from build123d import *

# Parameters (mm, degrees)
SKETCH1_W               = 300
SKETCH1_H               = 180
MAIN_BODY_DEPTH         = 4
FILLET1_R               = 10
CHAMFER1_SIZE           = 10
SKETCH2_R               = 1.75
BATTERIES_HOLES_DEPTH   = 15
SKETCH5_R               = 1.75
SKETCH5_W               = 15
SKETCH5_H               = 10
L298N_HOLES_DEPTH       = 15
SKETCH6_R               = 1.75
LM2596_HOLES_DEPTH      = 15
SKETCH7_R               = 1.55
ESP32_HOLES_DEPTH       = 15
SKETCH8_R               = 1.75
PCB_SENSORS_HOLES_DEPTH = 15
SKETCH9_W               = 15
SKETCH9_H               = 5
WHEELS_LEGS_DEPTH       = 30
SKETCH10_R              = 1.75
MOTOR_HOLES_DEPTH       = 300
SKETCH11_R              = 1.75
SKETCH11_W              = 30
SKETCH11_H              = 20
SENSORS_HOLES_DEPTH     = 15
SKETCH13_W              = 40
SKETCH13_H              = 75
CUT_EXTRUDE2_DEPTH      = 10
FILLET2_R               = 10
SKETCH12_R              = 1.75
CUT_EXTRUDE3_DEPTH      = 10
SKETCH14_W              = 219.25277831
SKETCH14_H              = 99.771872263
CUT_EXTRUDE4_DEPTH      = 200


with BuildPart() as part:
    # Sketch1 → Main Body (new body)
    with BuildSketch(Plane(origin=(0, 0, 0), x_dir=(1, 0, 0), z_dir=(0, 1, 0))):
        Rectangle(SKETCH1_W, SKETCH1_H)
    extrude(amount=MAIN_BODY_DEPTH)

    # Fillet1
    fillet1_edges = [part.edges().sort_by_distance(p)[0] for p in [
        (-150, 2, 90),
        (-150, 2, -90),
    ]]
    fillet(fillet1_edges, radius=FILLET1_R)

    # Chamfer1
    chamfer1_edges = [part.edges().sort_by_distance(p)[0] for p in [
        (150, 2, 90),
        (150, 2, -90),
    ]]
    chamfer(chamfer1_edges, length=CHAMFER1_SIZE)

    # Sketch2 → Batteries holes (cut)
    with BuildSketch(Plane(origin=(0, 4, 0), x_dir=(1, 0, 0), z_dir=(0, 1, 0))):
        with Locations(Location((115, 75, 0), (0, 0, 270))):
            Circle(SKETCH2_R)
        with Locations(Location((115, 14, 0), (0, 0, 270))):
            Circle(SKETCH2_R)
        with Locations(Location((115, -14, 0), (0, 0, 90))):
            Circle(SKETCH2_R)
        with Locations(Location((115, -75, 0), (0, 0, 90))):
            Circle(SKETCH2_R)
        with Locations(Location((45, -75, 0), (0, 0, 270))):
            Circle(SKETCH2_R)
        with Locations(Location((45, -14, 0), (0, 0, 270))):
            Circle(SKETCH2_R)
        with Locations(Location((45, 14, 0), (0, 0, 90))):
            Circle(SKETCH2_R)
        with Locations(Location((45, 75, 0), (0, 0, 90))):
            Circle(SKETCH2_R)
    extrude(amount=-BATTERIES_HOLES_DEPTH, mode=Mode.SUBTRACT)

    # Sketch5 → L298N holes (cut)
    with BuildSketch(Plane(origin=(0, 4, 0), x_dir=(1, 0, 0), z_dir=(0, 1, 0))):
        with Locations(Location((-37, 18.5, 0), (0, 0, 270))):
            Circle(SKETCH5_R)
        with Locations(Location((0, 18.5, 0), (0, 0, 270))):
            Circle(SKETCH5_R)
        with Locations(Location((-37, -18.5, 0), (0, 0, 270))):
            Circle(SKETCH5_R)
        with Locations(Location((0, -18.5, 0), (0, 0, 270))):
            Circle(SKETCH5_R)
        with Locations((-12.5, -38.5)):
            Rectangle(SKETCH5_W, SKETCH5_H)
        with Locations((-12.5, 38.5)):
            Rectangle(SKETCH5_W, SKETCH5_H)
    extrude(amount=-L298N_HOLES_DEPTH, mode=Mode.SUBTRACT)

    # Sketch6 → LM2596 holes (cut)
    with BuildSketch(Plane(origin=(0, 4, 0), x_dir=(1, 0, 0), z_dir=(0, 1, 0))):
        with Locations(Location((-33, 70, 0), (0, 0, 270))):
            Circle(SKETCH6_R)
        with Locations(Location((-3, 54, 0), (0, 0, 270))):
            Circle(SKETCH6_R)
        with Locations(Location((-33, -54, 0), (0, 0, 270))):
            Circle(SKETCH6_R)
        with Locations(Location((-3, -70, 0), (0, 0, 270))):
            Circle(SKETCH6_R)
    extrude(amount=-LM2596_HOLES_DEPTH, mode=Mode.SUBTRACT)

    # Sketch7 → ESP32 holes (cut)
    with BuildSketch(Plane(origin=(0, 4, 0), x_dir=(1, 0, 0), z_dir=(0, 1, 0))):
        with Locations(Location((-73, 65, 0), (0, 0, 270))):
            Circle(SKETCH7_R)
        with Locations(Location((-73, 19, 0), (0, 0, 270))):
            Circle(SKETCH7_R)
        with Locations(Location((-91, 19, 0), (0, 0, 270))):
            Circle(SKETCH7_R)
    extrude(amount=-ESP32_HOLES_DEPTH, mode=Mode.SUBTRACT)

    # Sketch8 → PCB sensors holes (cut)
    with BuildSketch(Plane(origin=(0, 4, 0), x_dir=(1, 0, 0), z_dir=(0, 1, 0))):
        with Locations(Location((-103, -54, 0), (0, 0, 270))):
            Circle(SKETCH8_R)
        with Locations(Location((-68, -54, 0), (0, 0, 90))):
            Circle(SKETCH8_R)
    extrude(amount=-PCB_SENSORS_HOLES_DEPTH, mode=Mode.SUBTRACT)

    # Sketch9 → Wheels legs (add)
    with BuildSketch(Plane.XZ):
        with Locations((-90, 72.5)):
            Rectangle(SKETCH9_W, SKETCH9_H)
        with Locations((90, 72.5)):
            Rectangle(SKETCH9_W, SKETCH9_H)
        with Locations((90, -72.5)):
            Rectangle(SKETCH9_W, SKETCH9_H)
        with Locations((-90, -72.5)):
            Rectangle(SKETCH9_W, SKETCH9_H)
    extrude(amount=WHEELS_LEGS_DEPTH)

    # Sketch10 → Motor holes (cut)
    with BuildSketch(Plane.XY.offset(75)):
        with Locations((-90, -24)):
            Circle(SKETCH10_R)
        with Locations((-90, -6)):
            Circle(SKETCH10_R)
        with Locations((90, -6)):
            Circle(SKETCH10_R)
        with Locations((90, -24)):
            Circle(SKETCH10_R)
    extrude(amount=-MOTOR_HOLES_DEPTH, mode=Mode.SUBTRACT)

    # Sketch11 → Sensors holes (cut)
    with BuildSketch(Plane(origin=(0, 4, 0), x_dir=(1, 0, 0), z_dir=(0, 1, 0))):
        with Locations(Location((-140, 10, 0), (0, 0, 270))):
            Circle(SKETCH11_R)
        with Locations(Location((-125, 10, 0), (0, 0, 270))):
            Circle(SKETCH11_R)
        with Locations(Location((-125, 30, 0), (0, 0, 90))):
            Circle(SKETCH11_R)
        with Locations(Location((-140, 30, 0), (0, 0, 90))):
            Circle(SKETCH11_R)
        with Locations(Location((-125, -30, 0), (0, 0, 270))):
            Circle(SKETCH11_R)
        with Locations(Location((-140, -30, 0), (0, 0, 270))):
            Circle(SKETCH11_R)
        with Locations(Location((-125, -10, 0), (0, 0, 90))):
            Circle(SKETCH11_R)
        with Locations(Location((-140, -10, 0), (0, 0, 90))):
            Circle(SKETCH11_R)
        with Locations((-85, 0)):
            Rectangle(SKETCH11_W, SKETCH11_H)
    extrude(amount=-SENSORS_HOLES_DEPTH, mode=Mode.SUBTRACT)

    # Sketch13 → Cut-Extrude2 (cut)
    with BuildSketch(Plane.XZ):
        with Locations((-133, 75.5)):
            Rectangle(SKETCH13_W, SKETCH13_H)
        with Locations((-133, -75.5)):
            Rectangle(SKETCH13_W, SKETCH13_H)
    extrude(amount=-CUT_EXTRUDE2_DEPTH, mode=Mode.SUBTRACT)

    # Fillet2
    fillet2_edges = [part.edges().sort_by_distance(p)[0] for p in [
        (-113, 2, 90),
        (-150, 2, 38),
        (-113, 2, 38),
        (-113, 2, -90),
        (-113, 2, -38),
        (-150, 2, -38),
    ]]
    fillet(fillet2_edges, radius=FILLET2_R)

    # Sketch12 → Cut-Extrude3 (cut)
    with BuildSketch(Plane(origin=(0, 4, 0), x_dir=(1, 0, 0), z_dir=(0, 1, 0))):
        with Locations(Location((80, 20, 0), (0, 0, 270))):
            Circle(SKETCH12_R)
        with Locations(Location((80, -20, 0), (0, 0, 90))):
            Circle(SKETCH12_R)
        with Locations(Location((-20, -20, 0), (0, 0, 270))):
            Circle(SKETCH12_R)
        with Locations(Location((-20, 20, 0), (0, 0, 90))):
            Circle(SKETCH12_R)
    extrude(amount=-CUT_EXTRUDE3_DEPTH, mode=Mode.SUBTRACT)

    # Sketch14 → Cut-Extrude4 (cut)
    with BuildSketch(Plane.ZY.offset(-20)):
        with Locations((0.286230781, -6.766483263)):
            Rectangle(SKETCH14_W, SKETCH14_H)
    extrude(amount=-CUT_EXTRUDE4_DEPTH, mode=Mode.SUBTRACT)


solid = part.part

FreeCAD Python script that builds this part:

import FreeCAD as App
import Part
import Sketcher
from FreeCAD import Vector


def edges_at(feature, points):
    """Names of the edges that pass closest to the given points."""
    edges = feature.Shape.Edges
    near = lambda p: min(range(len(edges)), key=lambda i: edges[i].distToShape(Part.Vertex(*p))[0])
    return sorted({f"Edge{near(p) + 1}" for p in points})

doc = App.newDocument("Part")
params = doc.addObject("Spreadsheet::Sheet", "Params")
for row, (alias, value) in enumerate([
    ("sketch1_width", "300 mm"),
    ("sketch1_height", "180 mm"),
    ("pad1_length", "4 mm"),
    ("fillet_radius", "10 mm"),
    ("chamfer_size", "10 mm"),
    ("sketch2_diameter", "3.5 mm"),
    ("pocket1_length", "15 mm"),
    ("sketch3_diameter", "3.5 mm"),
    ("sketch3_width", "15 mm"),
    ("sketch3_height", "10 mm"),
    ("pocket2_length", "15 mm"),
    ("sketch4_diameter", "3.5 mm"),
    ("pocket3_length", "15 mm"),
    ("sketch5_diameter", "3.1 mm"),
    ("pocket4_length", "15 mm"),
    ("sketch6_diameter", "3.5 mm"),
    ("pocket5_length", "15 mm"),
    ("sketch7_width", "15 mm"),
    ("sketch7_height", "5 mm"),
    ("pad2_length", "30 mm"),
    ("sketch8_diameter", "3.5 mm"),
    ("pocket6_length", "300 mm"),
    ("sketch9_diameter", "3.5 mm"),
    ("sketch9_width", "30 mm"),
    ("sketch9_height", "20 mm"),
    ("pocket7_length", "15 mm"),
    ("sketch10_width", "40 mm"),
    ("sketch10_height", "75 mm"),
    ("pocket8_length", "10 mm"),
    ("fillet2_radius", "10 mm"),
    ("sketch11_diameter", "3.5 mm"),
    ("pocket9_length", "10 mm"),
    ("pocket10_length", "200 mm"),
], start=1):
    params.set(f"A{row}", alias)
    params.set(f"B{row}", "=" + value)
    params.setAlias(f"B{row}", alias)

body = doc.addObject("PartDesign::Body", "Body")

# Sketch on XZ plane
sketch1 = body.newObject("Sketcher::SketchObject", "Sketch")
sketch1.AttachmentSupport = (doc.getObject("XZ_Plane"), [""])
sketch1.MapMode = "FlatFace"
sketch1.addGeometry([
    Part.LineSegment(Vector(-150, -90, 0), Vector(-150, 90, 0)),
    Part.LineSegment(Vector(-150, 90, 0), Vector(150, 90, 0)),
    Part.LineSegment(Vector(150, 90, 0), Vector(150, -90, 0)),
    Part.LineSegment(Vector(150, -90, 0), Vector(-150, -90, 0)),
], False)
sketch1.addConstraint([
    Sketcher.Constraint("Coincident", 0, 2, 1, 1),
    Sketcher.Constraint("Coincident", 1, 2, 2, 1),
    Sketcher.Constraint("Coincident", 2, 2, 3, 1),
    Sketcher.Constraint("Coincident", 3, 2, 0, 1),
    Sketcher.Constraint("Vertical", 0),
    Sketcher.Constraint("Horizontal", 1),
    Sketcher.Constraint("Vertical", 2),
    Sketcher.Constraint("Horizontal", 3),
    Sketcher.Constraint("Symmetric", 0, 2, 2, 2, -1, 1),
    Sketcher.Constraint("DistanceX", 1, 1, 1, 2, 300.0),
    Sketcher.Constraint("DistanceY", 0, 1, 0, 2, 180.0),
])
sketch1.setExpression("Constraints[9]", "Params.sketch1_width")
sketch1.setExpression("Constraints[10]", "Params.sketch1_height")
pad1 = body.newObject("PartDesign::Pad", "Pad")
pad1.Profile = sketch1
pad1.setExpression("Length", "Params.pad1_length")
pad1.Reversed = True
doc.recompute()

fillet = body.newObject("PartDesign::Fillet", "Fillet")
fillet.Base = (pad1, edges_at(pad1, [(-150, 2, 90), (-150, 2, -90)]))
fillet.setExpression("Radius", "Params.fillet_radius")
doc.recompute()

chamfer = body.newObject("PartDesign::Chamfer", "Chamfer")
chamfer.Base = (fillet, edges_at(fillet, [(150, 2, 90), (150, 2, -90)]))
chamfer.setExpression("Size", "Params.chamfer_size")

# Sketch on XZ plane
sketch2 = body.newObject("Sketcher::SketchObject", "Sketch001")
sketch2.AttachmentSupport = (doc.getObject("XZ_Plane"), [""])
sketch2.MapMode = "FlatFace"
sketch2.AttachmentOffset = App.Placement(Vector(0, 0, -4), App.Rotation())
sketch2.addGeometry([
    Part.Circle(Vector(115, -75, 0), Vector(0, 0, 1), 1.8),  # 0
    Part.Circle(Vector(115, -14, 0), Vector(0, 0, 1), 1.8),  # 1
    Part.Circle(Vector(115, 14, 0), Vector(0, 0, 1), 1.8),  # 2
    Part.Circle(Vector(115, 75, 0), Vector(0, 0, 1), 1.8),  # 3
    Part.Circle(Vector(45, 75, 0), Vector(0, 0, 1), 1.8),  # 4
    Part.Circle(Vector(45, 14, 0), Vector(0, 0, 1), 1.8),  # 5
    Part.Circle(Vector(45, -14, 0), Vector(0, 0, 1), 1.8),  # 6
    Part.Circle(Vector(45, -75, 0), Vector(0, 0, 1), 1.8),  # 7
], False)
sketch2.addConstraint([
    Sketcher.Constraint("Equal", 0, 1),
    Sketcher.Constraint("Equal", 1, 2),
    Sketcher.Constraint("Equal", 2, 3),
    Sketcher.Constraint("Equal", 3, 4),
    Sketcher.Constraint("Equal", 4, 5),
    Sketcher.Constraint("Equal", 5, 6),
    Sketcher.Constraint("Equal", 6, 7),
    Sketcher.Constraint("Symmetric", 1, 3, 2, 3, -1),
    Sketcher.Constraint("Symmetric", 0, 3, 3, 3, -1),
    Sketcher.Constraint("Symmetric", 5, 3, 6, 3, -1),
    Sketcher.Constraint("Symmetric", 4, 3, 7, 3, -1),
    Sketcher.Constraint("Horizontal", 3, 3, 4, 3),
    Sketcher.Constraint("Horizontal", 2, 3, 5, 3),
    Sketcher.Constraint("Vertical", 0, 3, 1, 3),
    Sketcher.Constraint("Vertical", 4, 3, 5, 3),
    Sketcher.Constraint("Diameter", 0, 3.5),
    Sketcher.Constraint("DistanceX", -1, 1, 0, 3, 115.0),
    Sketcher.Constraint("DistanceY", 0, 3, -1, 1, 75.0),
    Sketcher.Constraint("DistanceY", 1, 3, -1, 1, 14.0),
    Sketcher.Constraint("DistanceX", -1, 1, 4, 3, 45.0),
])
sketch2.setExpression("Constraints[15]", "Params.sketch2_diameter")
pocket1 = body.newObject("PartDesign::Pocket", "Pocket")
pocket1.Profile = sketch2
pocket1.setExpression("Length", "Params.pocket1_length")
pocket1.Reversed = True

# Sketch on XZ plane
sketch3 = body.newObject("Sketcher::SketchObject", "Sketch002")
sketch3.AttachmentSupport = (doc.getObject("XZ_Plane"), [""])
sketch3.MapMode = "FlatFace"
sketch3.AttachmentOffset = App.Placement(Vector(0, 0, -4), App.Rotation())
sketch3.addGeometry([
    Part.Circle(Vector(-37, -18.5, 0), Vector(0, 0, 1), 1.8),  # 0
    Part.Circle(Vector(0, -18.5, 0), Vector(0, 0, 1), 1.8),  # 1
    Part.Circle(Vector(-37, 18.5, 0), Vector(0, 0, 1), 1.8),  # 2
    Part.Circle(Vector(0, 18.5, 0), Vector(0, 0, 1), 1.8),  # 3
    Part.LineSegment(Vector(-20, 33.5, 0), Vector(-20, 43.5, 0)),  # 4
    Part.LineSegment(Vector(-20, 43.5, 0), Vector(-5, 43.5, 0)),  # 5
    Part.LineSegment(Vector(-5, 43.5, 0), Vector(-5, 33.5, 0)),  # 6
    Part.LineSegment(Vector(-5, 33.5, 0), Vector(-20, 33.5, 0)),  # 7
    Part.LineSegment(Vector(-20, -43.5, 0), Vector(-20, -33.5, 0)),  # 8
    Part.LineSegment(Vector(-20, -33.5, 0), Vector(-5, -33.5, 0)),  # 9
    Part.LineSegment(Vector(-5, -33.5, 0), Vector(-5, -43.5, 0)),  # 10
    Part.LineSegment(Vector(-5, -43.5, 0), Vector(-20, -43.5, 0)),  # 11
], False)
sketch3.addConstraint([
    Sketcher.Constraint("Coincident", 4, 2, 5, 1),
    Sketcher.Constraint("Coincident", 5, 2, 6, 1),
    Sketcher.Constraint("Coincident", 6, 2, 7, 1),
    Sketcher.Constraint("Coincident", 7, 2, 4, 1),
    Sketcher.Constraint("Coincident", 8, 2, 9, 1),
    Sketcher.Constraint("Coincident", 9, 2, 10, 1),
    Sketcher.Constraint("Coincident", 10, 2, 11, 1),
    Sketcher.Constraint("Coincident", 11, 2, 8, 1),
    Sketcher.Constraint("Vertical", 4),
    Sketcher.Constraint("Horizontal", 5),
    Sketcher.Constraint("Vertical", 6),
    Sketcher.Constraint("Horizontal", 7),
    Sketcher.Constraint("Vertical", 8),
    Sketcher.Constraint("Horizontal", 9),
    Sketcher.Constraint("Vertical", 10),
    Sketcher.Constraint("Horizontal", 11),
    Sketcher.Constraint("Equal", 0, 1),
    Sketcher.Constraint("Equal", 1, 2),
    Sketcher.Constraint("Equal", 2, 3),
    Sketcher.Constraint("Symmetric", 1, 3, 3, 3, -1, 1),
    Sketcher.Constraint("Symmetric", 0, 3, 2, 3, -1),
    Sketcher.Constraint("Symmetric", 7, 2, 8, 2, -1),
    Sketcher.Constraint("Symmetric", 5, 2, 10, 2, -1),
    Sketcher.Constraint("PointOnObject", 1, 3, -2),
    Sketcher.Constraint("Horizontal", 0, 3, 1, 3),
    Sketcher.Constraint("Diameter", 0, 3.5),
    Sketcher.Constraint("DistanceX", 5, 1, 5, 2, 15.0),
    Sketcher.Constraint("DistanceY", 4, 1, 4, 2, 10.0),
    Sketcher.Constraint("DistanceX", 0, 3, -1, 1, 37.0),
    Sketcher.Constraint("DistanceX", 4, 2, -1, 1, 20.0),
    Sketcher.Constraint("DistanceY", 0, 3, 2, 3, 37.0),
    Sketcher.Constraint("DistanceY", 2, 3, 4, 2, 25.0),
])
sketch3.setExpression("Constraints[25]", "Params.sketch3_diameter")
sketch3.setExpression("Constraints[26]", "Params.sketch3_width")
sketch3.setExpression("Constraints[27]", "Params.sketch3_height")
pocket2 = body.newObject("PartDesign::Pocket", "Pocket001")
pocket2.Profile = sketch3
pocket2.setExpression("Length", "Params.pocket2_length")
pocket2.Reversed = True

# Sketch on XZ plane
sketch4 = body.newObject("Sketcher::SketchObject", "Sketch003")
sketch4.AttachmentSupport = (doc.getObject("XZ_Plane"), [""])
sketch4.MapMode = "FlatFace"
sketch4.AttachmentOffset = App.Placement(Vector(0, 0, -4), App.Rotation())
sketch4.addGeometry([
    Part.Circle(Vector(-33, -70, 0), Vector(0, 0, 1), 1.8),
    Part.Circle(Vector(-3, -54, 0), Vector(0, 0, 1), 1.8),
    Part.Circle(Vector(-33, 54, 0), Vector(0, 0, 1), 1.8),
    Part.Circle(Vector(-3, 70, 0), Vector(0, 0, 1), 1.8),
], False)
sketch4.addConstraint([
    Sketcher.Constraint("Equal", 0, 1),
    Sketcher.Constraint("Equal", 1, 2),
    Sketcher.Constraint("Equal", 2, 3),
    Sketcher.Constraint("Vertical", 0, 3, 2, 3),
    Sketcher.Constraint("Vertical", 1, 3, 3, 3),
    Sketcher.Constraint("Diameter", 0, 3.5),
    Sketcher.Constraint("DistanceX", 0, 3, -1, 1, 33.0),
    Sketcher.Constraint("DistanceY", 0, 3, -1, 1, 70.0),
    Sketcher.Constraint("DistanceX", 1, 3, -1, 1, 3.0),
    Sketcher.Constraint("DistanceY", 1, 3, -1, 1, 54.0),
    Sketcher.Constraint("DistanceY", -1, 1, 2, 3, 54.0),
    Sketcher.Constraint("DistanceY", -1, 1, 3, 3, 70.0),
])
sketch4.setExpression("Constraints[5]", "Params.sketch4_diameter")
pocket3 = body.newObject("PartDesign::Pocket", "Pocket002")
pocket3.Profile = sketch4
pocket3.setExpression("Length", "Params.pocket3_length")
pocket3.Reversed = True

# Sketch on XZ plane
sketch5 = body.newObject("Sketcher::SketchObject", "Sketch004")
sketch5.AttachmentSupport = (doc.getObject("XZ_Plane"), [""])
sketch5.MapMode = "FlatFace"
sketch5.AttachmentOffset = App.Placement(Vector(0, 0, -4), App.Rotation())
sketch5.addGeometry([
    Part.Circle(Vector(-73, -65, 0), Vector(0, 0, 1), 1.6),
    Part.Circle(Vector(-73, -19, 0), Vector(0, 0, 1), 1.6),
    Part.Circle(Vector(-91, -19, 0), Vector(0, 0, 1), 1.6),
], False)
sketch5.addConstraint([
    Sketcher.Constraint("Equal", 0, 1),
    Sketcher.Constraint("Equal", 1, 2),
    Sketcher.Constraint("Horizontal", 1, 3, 2, 3),
    Sketcher.Constraint("Vertical", 0, 3, 1, 3),
    Sketcher.Constraint("Diameter", 0, 3.1),
    Sketcher.Constraint("DistanceX", 0, 3, -1, 1, 73.0),
    Sketcher.Constraint("DistanceY", 0, 3, -1, 1, 65.0),
    Sketcher.Constraint("DistanceY", 1, 3, -1, 1, 19.0),
    Sketcher.Constraint("DistanceX", 2, 3, -1, 1, 91.0),
])
sketch5.setExpression("Constraints[4]", "Params.sketch5_diameter")
pocket4 = body.newObject("PartDesign::Pocket", "Pocket003")
pocket4.Profile = sketch5
pocket4.setExpression("Length", "Params.pocket4_length")
pocket4.Reversed = True

# Sketch on XZ plane
sketch6 = body.newObject("Sketcher::SketchObject", "Sketch005")
sketch6.AttachmentSupport = (doc.getObject("XZ_Plane"), [""])
sketch6.MapMode = "FlatFace"
sketch6.AttachmentOffset = App.Placement(Vector(0, 0, -4), App.Rotation())
sketch6.addGeometry([
    Part.Circle(Vector(-103, 54, 0), Vector(0, 0, 1), 1.8),
    Part.Circle(Vector(-68, 54, 0), Vector(0, 0, 1), 1.8),
], False)
sketch6.addConstraint([
    Sketcher.Constraint("Equal", 0, 1),
    Sketcher.Constraint("Horizontal", 0, 3, 1, 3),
    Sketcher.Constraint("Diameter", 0, 3.5),
    Sketcher.Constraint("DistanceX", 0, 3, -1, 1, 103.0),
    Sketcher.Constraint("DistanceY", -1, 1, 0, 3, 54.0),
    Sketcher.Constraint("DistanceX", 1, 3, -1, 1, 68.0),
])
sketch6.setExpression("Constraints[2]", "Params.sketch6_diameter")
pocket5 = body.newObject("PartDesign::Pocket", "Pocket004")
pocket5.Profile = sketch6
pocket5.setExpression("Length", "Params.pocket5_length")
pocket5.Reversed = True

# Sketch on XZ plane
sketch7 = body.newObject("Sketcher::SketchObject", "Sketch006")
sketch7.AttachmentSupport = (doc.getObject("XZ_Plane"), [""])
sketch7.MapMode = "FlatFace"
sketch7.addGeometry([
    Part.LineSegment(Vector(-98, 75, 0), Vector(-98, 70, 0)),  # 0
    Part.LineSegment(Vector(-98, 70, 0), Vector(-82, 70, 0)),  # 1
    Part.LineSegment(Vector(-82, 70, 0), Vector(-82, 75, 0)),  # 2
    Part.LineSegment(Vector(-82, 75, 0), Vector(-98, 75, 0)),  # 3
    Part.LineSegment(Vector(82, 75, 0), Vector(82, 70, 0)),  # 4
    Part.LineSegment(Vector(82, 70, 0), Vector(98, 70, 0)),  # 5
    Part.LineSegment(Vector(98, 70, 0), Vector(98, 75, 0)),  # 6
    Part.LineSegment(Vector(98, 75, 0), Vector(82, 75, 0)),  # 7
    Part.LineSegment(Vector(82, -70, 0), Vector(82, -75, 0)),  # 8
    Part.LineSegment(Vector(82, -75, 0), Vector(98, -75, 0)),  # 9
    Part.LineSegment(Vector(98, -75, 0), Vector(98, -70, 0)),  # 10
    Part.LineSegment(Vector(98, -70, 0), Vector(82, -70, 0)),  # 11
    Part.LineSegment(Vector(-98, -70, 0), Vector(-98, -75, 0)),  # 12
    Part.LineSegment(Vector(-98, -75, 0), Vector(-82, -75, 0)),  # 13
    Part.LineSegment(Vector(-82, -75, 0), Vector(-82, -70, 0)),  # 14
    Part.LineSegment(Vector(-82, -70, 0), Vector(-98, -70, 0)),  # 15
], False)
sketch7.addConstraint([
    Sketcher.Constraint("Coincident", 0, 2, 1, 1),
    Sketcher.Constraint("Coincident", 1, 2, 2, 1),
    Sketcher.Constraint("Coincident", 2, 2, 3, 1),
    Sketcher.Constraint("Coincident", 3, 2, 0, 1),
    Sketcher.Constraint("Coincident", 4, 2, 5, 1),
    Sketcher.Constraint("Coincident", 5, 2, 6, 1),
    Sketcher.Constraint("Coincident", 6, 2, 7, 1),
    Sketcher.Constraint("Coincident", 7, 2, 4, 1),
    Sketcher.Constraint("Coincident", 8, 2, 9, 1),
    Sketcher.Constraint("Coincident", 9, 2, 10, 1),
    Sketcher.Constraint("Coincident", 10, 2, 11, 1),
    Sketcher.Constraint("Coincident", 11, 2, 8, 1),
    Sketcher.Constraint("Coincident", 12, 2, 13, 1),
    Sketcher.Constraint("Coincident", 13, 2, 14, 1),
    Sketcher.Constraint("Coincident", 14, 2, 15, 1),
    Sketcher.Constraint("Coincident", 15, 2, 12, 1),
    Sketcher.Constraint("Vertical", 0),
    Sketcher.Constraint("Horizontal", 1),
    Sketcher.Constraint("Vertical", 2),
    Sketcher.Constraint("Horizontal", 3),
    Sketcher.Constraint("Vertical", 4),
    Sketcher.Constraint("Horizontal", 5),
    Sketcher.Constraint("Vertical", 6),
    Sketcher.Constraint("Horizontal", 7),
    Sketcher.Constraint("Vertical", 8),
    Sketcher.Constraint("Horizontal", 9),
    Sketcher.Constraint("Vertical", 10),
    Sketcher.Constraint("Horizontal", 11),
    Sketcher.Constraint("Vertical", 12),
    Sketcher.Constraint("Horizontal", 13),
    Sketcher.Constraint("Vertical", 14),
    Sketcher.Constraint("Horizontal", 15),
    Sketcher.Constraint("Symmetric", 2, 2, 8, 2, -1, 1),
    Sketcher.Constraint("Symmetric", 0, 2, 10, 2, -1, 1),
    Sketcher.Constraint("Symmetric", 6, 2, 12, 2, -1, 1),
    Sketcher.Constraint("Symmetric", 4, 2, 14, 2, -1, 1),
    Sketcher.Constraint("Symmetric", 1, 2, 4, 2, -2),
    Sketcher.Constraint("Symmetric", 3, 2, 6, 2, -2),
    Sketcher.Constraint("DistanceX", 1, 1, 1, 2, 15.0),
    Sketcher.Constraint("DistanceY", 0, 2, 0, 1, 5.0),
    Sketcher.Constraint("DistanceY", -1, 1, 0, 2, 70.0),
    Sketcher.Constraint("DistanceX", 1, 2, 4, 2, 165.0),
])
sketch7.setExpression("Constraints[38]", "Params.sketch7_width")
sketch7.setExpression("Constraints[39]", "Params.sketch7_height")
pad2 = body.newObject("PartDesign::Pad", "Pad001")
pad2.Profile = sketch7
pad2.setExpression("Length", "Params.pad2_length")

# Sketch on XY plane
sketch8 = body.newObject("Sketcher::SketchObject", "Sketch007")
sketch8.AttachmentSupport = (doc.getObject("XY_Plane"), [""])
sketch8.MapMode = "FlatFace"
sketch8.AttachmentOffset = App.Placement(Vector(0, 0, 75), App.Rotation())
sketch8.addGeometry([
    Part.Circle(Vector(-90, -24, 0), Vector(0, 0, 1), 1.8),
    Part.Circle(Vector(-90, -6, 0), Vector(0, 0, 1), 1.8),
    Part.Circle(Vector(90, -6, 0), Vector(0, 0, 1), 1.8),
    Part.Circle(Vector(90, -24, 0), Vector(0, 0, 1), 1.8),
], False)
sketch8.addConstraint([
    Sketcher.Constraint("Equal", 0, 1),
    Sketcher.Constraint("Equal", 1, 2),
    Sketcher.Constraint("Equal", 2, 3),
    Sketcher.Constraint("Symmetric", 1, 3, 2, 3, -2),
    Sketcher.Constraint("Symmetric", 0, 3, 3, 3, -2),
    Sketcher.Constraint("Vertical", 0, 3, 1, 3),
    Sketcher.Constraint("Diameter", 0, 3.5),
    Sketcher.Constraint("DistanceX", 0, 3, -1, 1, 90.0),
    Sketcher.Constraint("DistanceY", 0, 3, -1, 1, 24.0),
    Sketcher.Constraint("DistanceY", 1, 3, -1, 1, 6.0),
])
sketch8.setExpression("Constraints[6]", "Params.sketch8_diameter")
pocket6 = body.newObject("PartDesign::Pocket", "Pocket005")
pocket6.Profile = sketch8
pocket6.setExpression("Length", "Params.pocket6_length")

# Sketch on XZ plane
sketch9 = body.newObject("Sketcher::SketchObject", "Sketch008")
sketch9.AttachmentSupport = (doc.getObject("XZ_Plane"), [""])
sketch9.MapMode = "FlatFace"
sketch9.AttachmentOffset = App.Placement(Vector(0, 0, -4), App.Rotation())
sketch9.addGeometry([
    Part.Circle(Vector(-140, -10, 0), Vector(0, 0, 1), 1.8),  # 0
    Part.Circle(Vector(-125, -10, 0), Vector(0, 0, 1), 1.8),  # 1
    Part.Circle(Vector(-125, -30, 0), Vector(0, 0, 1), 1.8),  # 2
    Part.Circle(Vector(-140, -30, 0), Vector(0, 0, 1), 1.8),  # 3
    Part.Circle(Vector(-125, 30, 0), Vector(0, 0, 1), 1.8),  # 4
    Part.Circle(Vector(-140, 30, 0), Vector(0, 0, 1), 1.8),  # 5
    Part.Circle(Vector(-125, 10, 0), Vector(0, 0, 1), 1.8),  # 6
    Part.Circle(Vector(-140, 10, 0), Vector(0, 0, 1), 1.8),  # 7
    Part.LineSegment(Vector(-100, -10, 0), Vector(-100, 10, 0)),  # 8
    Part.LineSegment(Vector(-100, 10, 0), Vector(-70, 10, 0)),  # 9
    Part.LineSegment(Vector(-70, 10, 0), Vector(-70, -10, 0)),  # 10
    Part.LineSegment(Vector(-70, -10, 0), Vector(-100, -10, 0)),  # 11
], False)
sketch9.addConstraint([
    Sketcher.Constraint("Coincident", 8, 2, 9, 1),
    Sketcher.Constraint("Coincident", 9, 2, 10, 1),
    Sketcher.Constraint("Coincident", 10, 2, 11, 1),
    Sketcher.Constraint("Coincident", 11, 2, 8, 1),
    Sketcher.Constraint("Vertical", 8),
    Sketcher.Constraint("Horizontal", 9),
    Sketcher.Constraint("Vertical", 10),
    Sketcher.Constraint("Horizontal", 11),
    Sketcher.Constraint("Equal", 0, 1),
    Sketcher.Constraint("Equal", 1, 2),
    Sketcher.Constraint("Equal", 2, 3),
    Sketcher.Constraint("Equal", 3, 4),
    Sketcher.Constraint("Equal", 4, 5),
    Sketcher.Constraint("Equal", 5, 6),
    Sketcher.Constraint("Equal", 6, 7),
    Sketcher.Constraint("Symmetric", 2, 3, 4, 3, -1),
    Sketcher.Constraint("Symmetric", 3, 3, 5, 3, -1),
    Sketcher.Constraint("Symmetric", 1, 3, 6, 3, -1),
    Sketcher.Constraint("Symmetric", 0, 3, 7, 3, -1),
    Sketcher.Constraint("Horizontal", 0, 3, 1, 3),
    Sketcher.Constraint("Horizontal", 2, 3, 3, 3),
    Sketcher.Constraint("Horizontal", 7, 3, 8, 2),
    Sketcher.Constraint("Horizontal", 1, 3, 10, 2),
    Sketcher.Constraint("Vertical", 1, 3, 2, 3),
    Sketcher.Constraint("Vertical", 0, 3, 3, 3),
    Sketcher.Constraint("Diameter", 0, 3.5),
    Sketcher.Constraint("DistanceX", 9, 1, 9, 2, 30.0),
    Sketcher.Constraint("DistanceY", 8, 1, 8, 2, 20.0),
    Sketcher.Constraint("DistanceX", 0, 3, -1, 1, 140.0),
    Sketcher.Constraint("DistanceX", 1, 3, -1, 1, 125.0),
    Sketcher.Constraint("DistanceY", 2, 3, -1, 1, 30.0),
    Sketcher.Constraint("DistanceX", 8, 2, -1, 1, 100.0),
])
sketch9.setExpression("Constraints[25]", "Params.sketch9_diameter")
sketch9.setExpression("Constraints[26]", "Params.sketch9_width")
sketch9.setExpression("Constraints[27]", "Params.sketch9_height")
pocket7 = body.newObject("PartDesign::Pocket", "Pocket006")
pocket7.Profile = sketch9
pocket7.setExpression("Length", "Params.pocket7_length")
pocket7.Reversed = True

# Sketch on XZ plane
sketch10 = body.newObject("Sketcher::SketchObject", "Sketch009")
sketch10.AttachmentSupport = (doc.getObject("XZ_Plane"), [""])
sketch10.MapMode = "FlatFace"
sketch10.addGeometry([
    Part.LineSegment(Vector(-153, 113, 0), Vector(-153, 38, 0)),  # 0
    Part.LineSegment(Vector(-153, 38, 0), Vector(-113, 38, 0)),  # 1
    Part.LineSegment(Vector(-113, 38, 0), Vector(-113, 113, 0)),  # 2
    Part.LineSegment(Vector(-113, 113, 0), Vector(-153, 113, 0)),  # 3
    Part.LineSegment(Vector(-153, -38, 0), Vector(-153, -113, 0)),  # 4
    Part.LineSegment(Vector(-153, -113, 0), Vector(-113, -113, 0)),  # 5
    Part.LineSegment(Vector(-113, -113, 0), Vector(-113, -38, 0)),  # 6
    Part.LineSegment(Vector(-113, -38, 0), Vector(-153, -38, 0)),  # 7
], False)
sketch10.addConstraint([
    Sketcher.Constraint("Coincident", 0, 2, 1, 1),
    Sketcher.Constraint("Coincident", 1, 2, 2, 1),
    Sketcher.Constraint("Coincident", 2, 2, 3, 1),
    Sketcher.Constraint("Coincident", 3, 2, 0, 1),
    Sketcher.Constraint("Coincident", 4, 2, 5, 1),
    Sketcher.Constraint("Coincident", 5, 2, 6, 1),
    Sketcher.Constraint("Coincident", 6, 2, 7, 1),
    Sketcher.Constraint("Coincident", 7, 2, 4, 1),
    Sketcher.Constraint("Vertical", 0),
    Sketcher.Constraint("Horizontal", 1),
    Sketcher.Constraint("Vertical", 2),
    Sketcher.Constraint("Horizontal", 3),
    Sketcher.Constraint("Vertical", 4),
    Sketcher.Constraint("Horizontal", 5),
    Sketcher.Constraint("Vertical", 6),
    Sketcher.Constraint("Horizontal", 7),
    Sketcher.Constraint("Symmetric", 3, 2, 4, 2, -1),
    Sketcher.Constraint("Symmetric", 1, 2, 6, 2, -1),
    Sketcher.Constraint("DistanceX", 1, 1, 1, 2, 40.0),
    Sketcher.Constraint("DistanceY", 0, 2, 0, 1, 75.0),
    Sketcher.Constraint("DistanceX", 0, 2, -1, 1, 153.0),
    Sketcher.Constraint("DistanceY", -1, 1, 0, 2, 38.0),
])
sketch10.setExpression("Constraints[18]", "Params.sketch10_width")
sketch10.setExpression("Constraints[19]", "Params.sketch10_height")
pocket8 = body.newObject("PartDesign::Pocket", "Pocket007")
pocket8.Profile = sketch10
pocket8.setExpression("Length", "Params.pocket8_length")
doc.recompute()

fillet2 = body.newObject("PartDesign::Fillet", "Fillet001")
fillet2.Base = (pocket8, edges_at(pocket8, [
    (-113, 2, 90),
    (-150, 2, 38),
    (-113, 2, 38),
    (-113, 2, -90),
    (-113, 2, -38),
    (-150, 2, -38),
]))
fillet2.setExpression("Radius", "Params.fillet2_radius")

# Sketch on XZ plane
sketch11 = body.newObject("Sketcher::SketchObject", "Sketch010")
sketch11.AttachmentSupport = (doc.getObject("XZ_Plane"), [""])
sketch11.MapMode = "FlatFace"
sketch11.AttachmentOffset = App.Placement(Vector(0, 0, -4), App.Rotation())
sketch11.addGeometry([
    Part.Circle(Vector(80, -20, 0), Vector(0, 0, 1), 1.8),
    Part.Circle(Vector(80, 20, 0), Vector(0, 0, 1), 1.8),
    Part.Circle(Vector(-20, 20, 0), Vector(0, 0, 1), 1.8),
    Part.Circle(Vector(-20, -20, 0), Vector(0, 0, 1), 1.8),
], False)
sketch11.addConstraint([
    Sketcher.Constraint("Equal", 0, 1),
    Sketcher.Constraint("Equal", 1, 2),
    Sketcher.Constraint("Equal", 2, 3),
    Sketcher.Constraint("Symmetric", 0, 3, 1, 3, -1),
    Sketcher.Constraint("Symmetric", 2, 3, 3, 3, -1),
    Sketcher.Constraint("Horizontal", 1, 3, 2, 3),
    Sketcher.Constraint("Diameter", 0, 3.5),
    Sketcher.Constraint("DistanceX", -1, 1, 0, 3, 80.0),
    Sketcher.Constraint("DistanceY", 0, 3, -1, 1, 20.0),
    Sketcher.Constraint("DistanceX", 2, 3, -1, 1, 20.0),
])
sketch11.setExpression("Constraints[6]", "Params.sketch11_diameter")
pocket9 = body.newObject("PartDesign::Pocket", "Pocket008")
pocket9.Profile = sketch11
pocket9.setExpression("Length", "Params.pocket9_length")
pocket9.Reversed = True

# Sketch on YZ plane
sketch12 = body.newObject("Sketcher::SketchObject", "Sketch011")
sketch12.AttachmentSupport = (doc.getObject("YZ_Plane"), [""])
sketch12.MapMode = "FlatFace"
sketch12.AttachmentOffset = App.Placement(Vector(0, 0, 20), App.Rotation())
sketch12.addGeometry([
    Part.LineSegment(Vector(43, -109, 0), Vector(-57, -109, 0)),
    Part.LineSegment(Vector(-57, -109, 0), Vector(-57, 110, 0)),
    Part.LineSegment(Vector(-57, 110, 0), Vector(43, 110, 0)),
    Part.LineSegment(Vector(43, 110, 0), Vector(43, -109, 0)),
], False)
sketch12.addConstraint([
    Sketcher.Constraint("Coincident", 0, 2, 1, 1),
    Sketcher.Constraint("Coincident", 1, 2, 2, 1),
    Sketcher.Constraint("Coincident", 2, 2, 3, 1),
    Sketcher.Constraint("Coincident", 3, 2, 0, 1),
    Sketcher.Constraint("Horizontal", 0),
    Sketcher.Constraint("Vertical", 1),
    Sketcher.Constraint("Horizontal", 2),
    Sketcher.Constraint("Vertical", 3),
    Sketcher.Constraint("DistanceY", 1, 1, 1, 2, 219.252778),
    Sketcher.Constraint("DistanceX", 0, 2, 0, 1, 99.771872),
    Sketcher.Constraint("DistanceX", 0, 2, -1, 1, 56.652419),
    Sketcher.Constraint("DistanceY", 0, 2, -1, 1, 109.340158),
])
pocket10 = body.newObject("PartDesign::Pocket", "Pocket009")
pocket10.Profile = sketch12
pocket10.setExpression("Length", "Params.pocket10_length")
pocket10.Reversed = True

doc.recompute()
